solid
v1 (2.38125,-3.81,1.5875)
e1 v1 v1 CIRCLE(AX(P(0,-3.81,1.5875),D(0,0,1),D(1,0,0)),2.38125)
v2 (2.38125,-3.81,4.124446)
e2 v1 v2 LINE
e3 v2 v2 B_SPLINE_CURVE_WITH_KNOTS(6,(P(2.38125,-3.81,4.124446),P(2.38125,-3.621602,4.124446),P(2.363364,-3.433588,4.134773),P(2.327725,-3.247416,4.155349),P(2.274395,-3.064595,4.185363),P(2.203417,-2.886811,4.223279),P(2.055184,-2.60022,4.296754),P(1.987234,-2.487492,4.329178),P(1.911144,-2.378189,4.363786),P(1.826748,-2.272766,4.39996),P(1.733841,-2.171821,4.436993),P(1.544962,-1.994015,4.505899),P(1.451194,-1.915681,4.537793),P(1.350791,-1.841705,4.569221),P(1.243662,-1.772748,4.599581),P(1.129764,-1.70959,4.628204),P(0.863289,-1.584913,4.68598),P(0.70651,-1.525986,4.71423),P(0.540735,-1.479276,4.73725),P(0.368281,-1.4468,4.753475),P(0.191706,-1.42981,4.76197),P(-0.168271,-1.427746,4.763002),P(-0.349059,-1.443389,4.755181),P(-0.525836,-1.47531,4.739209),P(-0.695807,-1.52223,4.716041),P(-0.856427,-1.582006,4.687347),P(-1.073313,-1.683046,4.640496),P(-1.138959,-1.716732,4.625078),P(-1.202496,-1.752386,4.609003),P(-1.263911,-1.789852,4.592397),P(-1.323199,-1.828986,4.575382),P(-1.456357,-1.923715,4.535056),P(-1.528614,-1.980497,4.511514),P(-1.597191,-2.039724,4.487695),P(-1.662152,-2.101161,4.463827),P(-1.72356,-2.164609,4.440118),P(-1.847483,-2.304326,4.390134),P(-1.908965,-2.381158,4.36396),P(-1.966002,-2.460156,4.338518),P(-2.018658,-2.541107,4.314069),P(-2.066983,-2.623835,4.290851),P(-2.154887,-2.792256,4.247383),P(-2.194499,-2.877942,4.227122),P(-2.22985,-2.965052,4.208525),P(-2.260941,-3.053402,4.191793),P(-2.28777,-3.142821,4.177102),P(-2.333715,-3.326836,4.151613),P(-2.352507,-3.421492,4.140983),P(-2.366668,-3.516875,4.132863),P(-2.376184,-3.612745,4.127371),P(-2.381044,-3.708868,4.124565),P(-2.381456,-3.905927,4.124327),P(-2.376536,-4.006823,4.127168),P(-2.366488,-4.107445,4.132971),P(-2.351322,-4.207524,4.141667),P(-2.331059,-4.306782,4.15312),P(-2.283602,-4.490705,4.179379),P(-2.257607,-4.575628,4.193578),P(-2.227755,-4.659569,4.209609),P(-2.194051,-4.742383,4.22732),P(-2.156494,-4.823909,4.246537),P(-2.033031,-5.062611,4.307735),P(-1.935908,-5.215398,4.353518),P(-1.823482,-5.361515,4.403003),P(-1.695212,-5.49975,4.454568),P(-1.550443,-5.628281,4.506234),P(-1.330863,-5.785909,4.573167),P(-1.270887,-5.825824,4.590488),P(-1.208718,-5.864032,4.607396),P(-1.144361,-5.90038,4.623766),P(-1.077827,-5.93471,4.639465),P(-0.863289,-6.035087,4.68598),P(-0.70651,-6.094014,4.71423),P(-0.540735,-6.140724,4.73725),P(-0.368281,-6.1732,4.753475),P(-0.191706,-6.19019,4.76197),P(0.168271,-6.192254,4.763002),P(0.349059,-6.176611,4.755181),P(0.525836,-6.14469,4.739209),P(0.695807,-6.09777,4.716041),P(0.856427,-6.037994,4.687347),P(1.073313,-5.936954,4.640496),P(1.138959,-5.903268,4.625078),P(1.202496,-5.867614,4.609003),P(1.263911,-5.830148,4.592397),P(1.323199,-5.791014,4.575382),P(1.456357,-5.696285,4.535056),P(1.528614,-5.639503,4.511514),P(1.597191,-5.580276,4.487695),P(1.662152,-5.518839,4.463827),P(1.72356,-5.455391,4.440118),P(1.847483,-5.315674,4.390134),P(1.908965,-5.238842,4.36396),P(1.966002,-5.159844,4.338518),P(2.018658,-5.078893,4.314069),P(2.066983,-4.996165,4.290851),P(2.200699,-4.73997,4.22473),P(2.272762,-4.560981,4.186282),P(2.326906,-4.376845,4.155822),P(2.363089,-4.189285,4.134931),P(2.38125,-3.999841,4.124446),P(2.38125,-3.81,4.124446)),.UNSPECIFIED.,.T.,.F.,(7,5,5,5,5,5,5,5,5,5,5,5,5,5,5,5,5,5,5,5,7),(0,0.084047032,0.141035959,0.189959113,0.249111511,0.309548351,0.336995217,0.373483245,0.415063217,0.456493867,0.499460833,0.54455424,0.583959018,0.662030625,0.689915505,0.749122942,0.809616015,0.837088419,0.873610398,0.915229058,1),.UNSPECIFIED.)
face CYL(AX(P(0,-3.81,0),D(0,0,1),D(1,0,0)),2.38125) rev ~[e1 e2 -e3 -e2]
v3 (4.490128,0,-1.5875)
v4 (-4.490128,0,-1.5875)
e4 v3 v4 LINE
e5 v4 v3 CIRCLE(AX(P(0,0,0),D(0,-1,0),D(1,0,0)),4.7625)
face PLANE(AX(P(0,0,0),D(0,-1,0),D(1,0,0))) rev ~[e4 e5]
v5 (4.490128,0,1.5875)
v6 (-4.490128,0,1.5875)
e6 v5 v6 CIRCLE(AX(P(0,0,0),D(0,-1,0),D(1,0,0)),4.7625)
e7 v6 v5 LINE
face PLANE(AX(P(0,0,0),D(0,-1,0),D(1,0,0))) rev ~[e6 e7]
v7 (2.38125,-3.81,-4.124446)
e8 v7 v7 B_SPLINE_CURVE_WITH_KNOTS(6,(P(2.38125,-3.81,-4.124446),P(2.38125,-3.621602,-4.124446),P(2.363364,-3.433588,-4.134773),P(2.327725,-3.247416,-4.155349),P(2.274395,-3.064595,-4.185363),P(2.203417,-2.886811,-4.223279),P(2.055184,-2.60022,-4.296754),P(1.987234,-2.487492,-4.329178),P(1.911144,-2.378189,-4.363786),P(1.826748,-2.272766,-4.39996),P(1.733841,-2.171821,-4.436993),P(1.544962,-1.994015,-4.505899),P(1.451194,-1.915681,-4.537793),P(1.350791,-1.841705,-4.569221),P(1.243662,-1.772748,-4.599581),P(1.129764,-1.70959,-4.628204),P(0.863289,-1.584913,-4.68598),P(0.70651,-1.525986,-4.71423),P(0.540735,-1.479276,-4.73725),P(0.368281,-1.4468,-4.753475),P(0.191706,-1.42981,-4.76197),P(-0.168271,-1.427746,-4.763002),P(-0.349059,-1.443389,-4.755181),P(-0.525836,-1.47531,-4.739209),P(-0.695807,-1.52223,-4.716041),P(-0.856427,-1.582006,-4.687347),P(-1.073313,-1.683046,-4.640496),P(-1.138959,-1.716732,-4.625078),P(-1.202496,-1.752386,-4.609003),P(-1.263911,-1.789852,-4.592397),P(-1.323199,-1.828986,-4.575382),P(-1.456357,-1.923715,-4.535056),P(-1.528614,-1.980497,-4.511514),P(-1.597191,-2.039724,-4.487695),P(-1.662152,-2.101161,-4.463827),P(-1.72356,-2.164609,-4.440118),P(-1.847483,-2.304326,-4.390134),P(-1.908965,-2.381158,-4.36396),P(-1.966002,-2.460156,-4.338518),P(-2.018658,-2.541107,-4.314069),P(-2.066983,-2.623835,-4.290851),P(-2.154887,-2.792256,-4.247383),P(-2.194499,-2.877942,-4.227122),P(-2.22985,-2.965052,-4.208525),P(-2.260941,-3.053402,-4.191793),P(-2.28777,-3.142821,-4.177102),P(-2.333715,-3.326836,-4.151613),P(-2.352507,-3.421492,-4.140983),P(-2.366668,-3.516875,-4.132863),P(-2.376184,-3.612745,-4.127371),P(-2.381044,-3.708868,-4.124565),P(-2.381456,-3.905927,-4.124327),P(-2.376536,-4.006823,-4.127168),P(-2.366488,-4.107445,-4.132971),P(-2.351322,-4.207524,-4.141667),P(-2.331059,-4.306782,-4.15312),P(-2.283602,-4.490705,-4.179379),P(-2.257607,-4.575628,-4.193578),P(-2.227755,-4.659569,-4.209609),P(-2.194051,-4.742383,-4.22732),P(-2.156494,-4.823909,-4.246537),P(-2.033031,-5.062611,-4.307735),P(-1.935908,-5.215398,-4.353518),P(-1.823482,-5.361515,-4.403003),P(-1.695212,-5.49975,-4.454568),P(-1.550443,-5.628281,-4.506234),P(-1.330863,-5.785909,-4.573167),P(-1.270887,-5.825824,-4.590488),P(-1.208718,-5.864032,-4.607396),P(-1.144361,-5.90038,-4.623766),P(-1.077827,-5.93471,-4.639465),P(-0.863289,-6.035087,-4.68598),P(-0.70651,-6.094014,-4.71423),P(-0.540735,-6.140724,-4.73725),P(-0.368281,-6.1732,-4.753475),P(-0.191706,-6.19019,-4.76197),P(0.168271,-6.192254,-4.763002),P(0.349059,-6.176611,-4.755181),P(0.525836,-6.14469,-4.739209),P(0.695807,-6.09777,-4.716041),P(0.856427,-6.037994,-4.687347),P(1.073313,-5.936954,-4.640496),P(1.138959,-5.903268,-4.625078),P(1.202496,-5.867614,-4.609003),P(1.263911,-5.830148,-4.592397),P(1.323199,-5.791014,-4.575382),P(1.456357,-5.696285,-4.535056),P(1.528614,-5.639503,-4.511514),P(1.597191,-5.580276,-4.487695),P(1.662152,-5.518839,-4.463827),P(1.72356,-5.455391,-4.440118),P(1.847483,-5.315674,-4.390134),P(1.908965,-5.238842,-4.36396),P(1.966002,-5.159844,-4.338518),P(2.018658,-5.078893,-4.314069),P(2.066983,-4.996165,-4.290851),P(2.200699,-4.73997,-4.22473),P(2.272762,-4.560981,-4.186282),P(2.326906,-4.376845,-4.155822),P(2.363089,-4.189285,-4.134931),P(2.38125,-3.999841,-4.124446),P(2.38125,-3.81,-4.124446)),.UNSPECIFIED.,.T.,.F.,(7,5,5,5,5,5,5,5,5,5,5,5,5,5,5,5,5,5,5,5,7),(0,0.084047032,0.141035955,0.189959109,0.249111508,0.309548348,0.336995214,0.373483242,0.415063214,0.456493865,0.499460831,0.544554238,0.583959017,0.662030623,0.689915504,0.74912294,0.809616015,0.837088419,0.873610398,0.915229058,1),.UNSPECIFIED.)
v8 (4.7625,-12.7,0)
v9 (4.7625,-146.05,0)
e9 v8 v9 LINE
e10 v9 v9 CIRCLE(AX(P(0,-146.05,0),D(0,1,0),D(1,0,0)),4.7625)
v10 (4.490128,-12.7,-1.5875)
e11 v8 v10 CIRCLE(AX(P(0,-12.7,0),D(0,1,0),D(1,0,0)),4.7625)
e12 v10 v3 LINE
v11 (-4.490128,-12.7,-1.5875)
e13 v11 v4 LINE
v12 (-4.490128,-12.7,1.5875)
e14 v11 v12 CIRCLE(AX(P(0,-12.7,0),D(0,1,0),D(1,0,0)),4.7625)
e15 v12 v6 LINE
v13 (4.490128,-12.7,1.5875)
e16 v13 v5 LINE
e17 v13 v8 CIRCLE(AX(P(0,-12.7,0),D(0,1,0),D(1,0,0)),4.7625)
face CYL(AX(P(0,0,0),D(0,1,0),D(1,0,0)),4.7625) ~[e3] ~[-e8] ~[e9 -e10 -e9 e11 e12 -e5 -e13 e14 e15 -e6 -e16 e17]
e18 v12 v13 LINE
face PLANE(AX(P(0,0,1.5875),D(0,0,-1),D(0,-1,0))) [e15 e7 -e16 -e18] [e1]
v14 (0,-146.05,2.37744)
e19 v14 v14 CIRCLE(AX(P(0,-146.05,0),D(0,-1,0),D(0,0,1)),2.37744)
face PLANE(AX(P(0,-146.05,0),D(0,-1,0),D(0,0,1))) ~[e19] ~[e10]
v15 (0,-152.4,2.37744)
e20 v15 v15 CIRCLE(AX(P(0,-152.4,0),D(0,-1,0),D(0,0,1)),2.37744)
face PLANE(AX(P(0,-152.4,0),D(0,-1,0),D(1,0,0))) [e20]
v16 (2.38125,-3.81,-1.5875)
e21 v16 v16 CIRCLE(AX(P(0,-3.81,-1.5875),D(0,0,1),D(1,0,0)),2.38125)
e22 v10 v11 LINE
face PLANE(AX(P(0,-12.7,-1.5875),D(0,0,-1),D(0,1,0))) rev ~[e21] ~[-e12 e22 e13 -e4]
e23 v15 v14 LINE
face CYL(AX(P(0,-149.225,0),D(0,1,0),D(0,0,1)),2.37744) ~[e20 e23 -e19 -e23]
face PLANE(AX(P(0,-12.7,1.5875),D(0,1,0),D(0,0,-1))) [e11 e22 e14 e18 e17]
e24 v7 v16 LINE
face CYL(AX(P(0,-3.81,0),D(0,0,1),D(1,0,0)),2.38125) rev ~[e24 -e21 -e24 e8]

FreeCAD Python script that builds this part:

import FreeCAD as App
import Part
import Sketcher

V = App.Vector
Q = App.Units.Quantity


def add_polygon(sketch, points):
    """Adds a closed chain of lines whose ends are joined by coincident constraints."""
    first, n = sketch.GeometryCount, len(points)
    for a, b in zip(points, points[1:] + points[:1]):
        sketch.addGeometry(Part.LineSegment(App.Vector(*a, 0), App.Vector(*b, 0)), False)
    for i in range(n):
        sketch.addConstraint(Sketcher.Constraint("Coincident", first + i, 2, first + (i + 1) % n, 1))

doc = App.newDocument("Part")
params = doc.addObject("Spreadsheet::Sheet", "Params")
for row, (alias, value) in enumerate([
    ("sketch1_diameter", "0.375 in"),
    ("pad1_length", "6 in"),
    ("sketch2_width", "0.25 in"),
    ("groove_angle", "360 deg"),
    ("sketch3_width", "0.5 in"),
    ("sketch3_height", "0.125 in"),
    ("sketch4_diameter", "0.1875 in"),
    ("pocket2_length", "1 in"),
], start=1):
    params.set(f"A{row}", alias)
    params.set(f"B{row}", "=" + value)
    params.setAlias(f"B{row}", alias)

body = doc.addObject("PartDesign::Body", "Body")

# Sketch on XZ plane
sketch1 = body.newObject("Sketcher::SketchObject", "Sketch")
sketch1.AttachmentSupport = (doc.getObject("XZ_Plane"), [""])
sketch1.MapMode = "FlatFace"
sketch1.addGeometry(Part.Circle(V(0, 0, 0), V(0, 0, 1), 4.7625), False)
sketch1.addConstraint(Sketcher.Constraint("Coincident", 0, 3, -1, 1))
sketch1.addConstraint(Sketcher.Constraint("Diameter", 0, Q("0.375 in")))
sketch1.setExpression("Constraints[1]", "Params.sketch1_diameter")
pad1 = body.newObject("PartDesign::Pad", "Pad")
pad1.Profile = sketch1
pad1.setExpression("Length", "Params.pad1_length")

# Sketch on YZ plane
sketch2 = body.newObject("Sketcher::SketchObject", "Sketch001")
sketch2.AttachmentSupport = (doc.getObject("YZ_Plane"), [""])
sketch2.MapMode = "FlatFace"
add_polygon(sketch2, [(-152.4, 7.122667), (-152.4, 2.37744), (-146.05, 2.37744), (-146.05, 7.122667)])  # lines 0-3
sketch2.addConstraint(Sketcher.Constraint("Vertical", 0))
sketch2.addConstraint(Sketcher.Constraint("Horizontal", 1))
sketch2.addConstraint(Sketcher.Constraint("Vertical", 2))
sketch2.addConstraint(Sketcher.Constraint("Horizontal", 3))
sketch2.addConstraint(Sketcher.Constraint("DistanceX", 0, 2, -1, 1, Q("6 in")))
sketch2.addConstraint(Sketcher.Constraint("DistanceX", 1, 1, 1, 2, Q("0.25 in")))
sketch2.addConstraint(Sketcher.Constraint("DistanceY", -1, 1, 0, 2, Q("0.0936 in")))
sketch2.addConstraint(Sketcher.Constraint("DistanceY", 0, 2, 0, 1, 4.745227))
sketch2.setExpression("Constraints[9]", "Params.sketch2_width")
groove = body.newObject("PartDesign::Groove", "Groove")
groove.Profile = sketch2
groove.ReferenceAxis = (sketch2, ["H_Axis"])
groove.setExpression("Angle", "Params.groove_angle")

# Sketch on YZ plane
sketch3 = body.newObject("Sketcher::SketchObject", "Sketch002")
sketch3.AttachmentSupport = (doc.getObject("YZ_Plane"), [""])
sketch3.MapMode = "FlatFace"
add_polygon(sketch3, [(0, -1.5875), (0, 1.5875), (-12.7, 1.5875), (-12.7, -1.5875)])  # lines 0-3
sketch3.addConstraint(Sketcher.Constraint("Vertical", 0))
sketch3.addConstraint(Sketcher.Constraint("Horizontal", 1))
sketch3.addConstraint(Sketcher.Constraint("Vertical", 2))
sketch3.addConstraint(Sketcher.Constraint("Horizontal", 3))
sketch3.addConstraint(Sketcher.Constraint("Symmetric", 0, 2, 3, 2, -1, 1))
sketch3.addConstraint(Sketcher.Constraint("DistanceX", 1, 2, 1, 1, Q("0.5 in")))
sketch3.addConstraint(Sketcher.Constraint("DistanceY", 0, 1, 0, 2, Q("0.125 in")))
sketch3.setExpression("Constraints[9]", "Params.sketch3_width")
sketch3.setExpression("Constraints[10]", "Params.sketch3_height")
pocket1 = body.newObject("PartDesign::Pocket", "Pocket")
pocket1.Profile = sketch3
pocket1.Type = "ThroughAll"
pocket1.Midplane = True

# Sketch on XY plane
sketch4 = body.newObject("Sketcher::SketchObject", "Sketch003")
sketch4.AttachmentSupport = (doc.getObject("XY_Plane"), [""])
sketch4.MapMode = "FlatFace"
sketch4.addGeometry(Part.Circle(V(0, -3.81, 0), V(0, 0, 1), 2.38125), False)
sketch4.addConstraint(Sketcher.Constraint("PointOnObject", 0, 3, -2))
sketch4.addConstraint(Sketcher.Constraint("Diameter", 0, Q("0.1875 in")))
sketch4.addConstraint(Sketcher.Constraint("DistanceY", 0, 3, -1, 1, Q("0.15 in")))
sketch4.setExpression("Constraints[1]", "Params.sketch4_diameter")
pocket2 = body.newObject("PartDesign::Pocket", "Pocket001")
pocket2.Profile = sketch4
pocket2.setExpression("Length", "Params.pocket2_length")
pocket2.Midplane = True

doc.recompute()
